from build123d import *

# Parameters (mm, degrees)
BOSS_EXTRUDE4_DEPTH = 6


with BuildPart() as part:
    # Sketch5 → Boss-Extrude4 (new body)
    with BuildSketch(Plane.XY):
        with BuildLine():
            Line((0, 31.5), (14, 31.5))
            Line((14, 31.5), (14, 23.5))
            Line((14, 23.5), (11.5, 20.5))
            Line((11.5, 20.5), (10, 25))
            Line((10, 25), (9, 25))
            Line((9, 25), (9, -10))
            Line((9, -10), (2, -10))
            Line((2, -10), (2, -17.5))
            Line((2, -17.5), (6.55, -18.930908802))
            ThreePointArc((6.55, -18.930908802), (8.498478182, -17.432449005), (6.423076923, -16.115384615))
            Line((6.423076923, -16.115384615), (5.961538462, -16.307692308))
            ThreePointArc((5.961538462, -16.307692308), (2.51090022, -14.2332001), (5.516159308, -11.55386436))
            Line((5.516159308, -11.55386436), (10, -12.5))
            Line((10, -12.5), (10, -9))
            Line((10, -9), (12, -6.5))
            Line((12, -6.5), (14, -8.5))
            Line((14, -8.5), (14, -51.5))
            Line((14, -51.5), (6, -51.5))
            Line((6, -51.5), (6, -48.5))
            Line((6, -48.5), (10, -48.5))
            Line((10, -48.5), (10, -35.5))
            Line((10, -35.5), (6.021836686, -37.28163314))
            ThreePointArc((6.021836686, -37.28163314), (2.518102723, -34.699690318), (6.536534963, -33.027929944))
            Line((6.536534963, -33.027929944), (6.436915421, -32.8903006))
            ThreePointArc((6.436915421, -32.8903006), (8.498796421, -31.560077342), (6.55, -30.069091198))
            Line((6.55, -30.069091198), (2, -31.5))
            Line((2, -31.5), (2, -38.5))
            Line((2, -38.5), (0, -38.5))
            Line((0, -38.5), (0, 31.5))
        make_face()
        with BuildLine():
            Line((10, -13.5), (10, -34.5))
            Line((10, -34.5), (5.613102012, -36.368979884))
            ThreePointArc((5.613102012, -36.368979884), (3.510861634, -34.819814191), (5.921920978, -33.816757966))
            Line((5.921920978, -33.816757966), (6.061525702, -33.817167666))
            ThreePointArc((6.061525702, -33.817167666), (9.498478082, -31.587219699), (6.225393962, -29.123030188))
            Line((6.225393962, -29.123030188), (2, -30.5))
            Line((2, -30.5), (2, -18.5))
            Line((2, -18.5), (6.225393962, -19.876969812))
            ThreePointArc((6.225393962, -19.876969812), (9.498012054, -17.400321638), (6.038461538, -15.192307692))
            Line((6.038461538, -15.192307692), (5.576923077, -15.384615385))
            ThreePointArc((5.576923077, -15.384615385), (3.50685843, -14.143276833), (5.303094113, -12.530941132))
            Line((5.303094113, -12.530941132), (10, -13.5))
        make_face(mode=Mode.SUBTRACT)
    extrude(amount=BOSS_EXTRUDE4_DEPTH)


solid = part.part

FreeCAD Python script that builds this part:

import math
import FreeCAD as App
import Part
import Sketcher

V = App.Vector
Q = App.Units.Quantity

doc = App.newDocument("Part")
body = doc.addObject("PartDesign::Body", "Body")

sketch1 = doc.addObject("Sketcher::SketchObject", "Sketch")
body.addObject(sketch1)
sketch1.AttachmentSupport = (doc.XY_Plane, [""])
sketch1.MapMode = "FlatFace"
sketch1.addGeometry([
    Part.LineSegment(V(14, 31.5, 0), V(0, 31.5, 0)),
    Part.LineSegment(V(0, 31.5, 0), V(0, -38.5, 0)),
    Part.LineSegment(V(0, -38.5, 0), V(2, -38.5, 0)),
    Part.LineSegment(V(2, -38.5, 0), V(2, -31.5, 0)),
    Part.LineSegment(V(2, -31.5, 0), V(6.55, -30.07, 0)),
    Part.ArcOfCircle(Part.Circle(V(7, -31.5, 0), V(0, 0, 1), 1.5), math.radians(-112), math.radians(107)),
    Part.LineSegment(V(6.44, -32.89, 0), V(6.54, -33.03, 0)),
    Part.ArcOfCircle(Part.Circle(V(5, -35, 0), V(0, 0, 1), 2.5), math.radians(52), math.radians(294)),
    Part.LineSegment(V(6.02, -37.28, 0), V(10, -35.5, 0)),
    Part.LineSegment(V(10, -35.5, 0), V(10, -48.5, 0)),
    Part.LineSegment(V(10, -48.5, 0), V(6, -48.5, 0)),
    Part.LineSegment(V(6, -48.5, 0), V(6, -51.5, 0)),
    Part.LineSegment(V(6, -51.5, 0), V(14, -51.5, 0)),
    Part.LineSegment(V(14, -51.5, 0), V(14, -8.5, 0)),
    Part.LineSegment(V(14, -8.5, 0), V(12, -6.5, 0)),
    Part.LineSegment(V(12, -6.5, 0), V(10, -9, 0)),
    Part.LineSegment(V(10, -9, 0), V(10, -12.5, 0)),
    Part.LineSegment(V(10, -12.5, 0), V(5.52, -11.55, 0)),
    Part.ArcOfCircle(Part.Circle(V(5, -14, 0), V(0, 0, 1), 2.5), math.radians(78), math.radians(293)),
    Part.LineSegment(V(5.96, -16.31, 0), V(6.42, -16.12, 0)),
    Part.ArcOfCircle(Part.Circle(V(7, -17.5, 0), V(0, 0, 1), 1.5), math.radians(-107), math.radians(113)),
    Part.LineSegment(V(6.55, -18.93, 0), V(2, -17.5, 0)),
    Part.LineSegment(V(2, -17.5, 0), V(2, -10, 0)),
    Part.LineSegment(V(2, -10, 0), V(9, -10, 0)),
    Part.LineSegment(V(9, -10, 0), V(9, 25, 0)),
    Part.LineSegment(V(9, 25, 0), V(10, 25, 0)),
    Part.LineSegment(V(10, 25, 0), V(11.5, 20.5, 0)),
    Part.LineSegment(V(11.5, 20.5, 0), V(14, 23.5, 0)),
    Part.LineSegment(V(14, 23.5, 0), V(14, 31.5, 0)),
    Part.LineSegment(V(10, -13.5, 0), V(10, -34.5, 0)),
    Part.LineSegment(V(10, -34.5, 0), V(5.61, -36.37, 0)),
    Part.ArcOfCircle(Part.Circle(V(5, -35, 0), V(0, 0, 1), 1.5), math.radians(52), math.radians(294)),
    Part.LineSegment(V(5.92, -33.82, 0), V(6.06, -33.82, 0)),
    Part.ArcOfCircle(Part.Circle(V(7, -31.5, 0), V(0, 0, 1), 2.5), math.radians(-112), math.radians(108)),
    Part.LineSegment(V(6.23, -29.12, 0), V(2, -30.5, 0)),
    Part.LineSegment(V(2, -30.5, 0), V(2, -18.5, 0)),
    Part.LineSegment(V(2, -18.5, 0), V(6.23, -19.88, 0)),
    Part.ArcOfCircle(Part.Circle(V(7, -17.5, 0), V(0, 0, 1), 2.5), math.radians(-108), math.radians(113)),
    Part.LineSegment(V(6.04, -15.19, 0), V(5.58, -15.38, 0)),
    Part.ArcOfCircle(Part.Circle(V(5, -14, 0), V(0, 0, 1), 1.5), math.radians(78), math.radians(293)),
    Part.LineSegment(V(5.3, -12.53, 0), V(10, -13.5, 0)),
], False)
sketch1.addConstraint([
    Sketcher.Constraint("Coincident", 0, 2, 1, 1),
    Sketcher.Constraint("Coincident", 1, 2, 2, 1),
    Sketcher.Constraint("Coincident", 2, 2, 3, 1),
    Sketcher.Constraint("Coincident", 3, 2, 4, 1),
    Sketcher.Constraint("Tangent", 4, 2, 5, 2),
    Sketcher.Constraint("Coincident", 5, 1, 6, 1),
    Sketcher.Constraint("Coincident", 6, 2, 7, 1),
    Sketcher.Constraint("Tangent", 7, 2, 8, 1),
    Sketcher.Constraint("Coincident", 8, 2, 9, 1),
    Sketcher.Constraint("Coincident", 9, 2, 10, 1),
    Sketcher.Constraint("Coincident", 10, 2, 11, 1),
    Sketcher.Constraint("Coincident", 11, 2, 12, 1),
    Sketcher.Constraint("Coincident", 12, 2, 13, 1),
    Sketcher.Constraint("Coincident", 13, 2, 14, 1),
    Sketcher.Constraint("Coincident", 14, 2, 15, 1),
    Sketcher.Constraint("Coincident", 15, 2, 16, 1),
    Sketcher.Constraint("Coincident", 16, 2, 17, 1),
    Sketcher.Constraint("Tangent", 17, 2, 18, 1),
    Sketcher.Constraint("Tangent", 18, 2, 19, 1),
    Sketcher.Constraint("Tangent", 19, 2, 20, 2),
    Sketcher.Constraint("Tangent", 20, 1, 21, 1),
    Sketcher.Constraint("Coincident", 21, 2, 22, 1),
    Sketcher.Constraint("Coincident", 22, 2, 23, 1),
    Sketcher.Constraint("Coincident", 23, 2, 24, 1),
    Sketcher.Constraint("Coincident", 24, 2, 25, 1),
    Sketcher.Constraint("Coincident", 25, 2, 26, 1),
    Sketcher.Constraint("Coincident", 26, 2, 27, 1),
    Sketcher.Constraint("Coincident", 27, 2, 28, 1),
    Sketcher.Constraint("Coincident", 28, 2, 0, 1),
    Sketcher.Constraint("Coincident", 29, 2, 30, 1),
    Sketcher.Constraint("Coincident", 30, 2, 31, 2),
    Sketcher.Constraint("Coincident", 31, 1, 32, 1),
    Sketcher.Constraint("Coincident", 32, 2, 33, 1),
    Sketcher.Constraint("Tangent", 33, 2, 34, 1),
    Sketcher.Constraint("Coincident", 34, 2, 35, 1),
    Sketcher.Constraint("Coincident", 35, 2, 36, 1),
    Sketcher.Constraint("Tangent", 36, 2, 37, 1),
    Sketcher.Constraint("Tangent", 37, 2, 38, 1),
    Sketcher.Constraint("Tangent", 38, 2, 39, 2),
    Sketcher.Constraint("Tangent", 39, 1, 40, 1),
    Sketcher.Constraint("Coincident", 40, 2, 29, 1),
    Sketcher.Constraint("Horizontal", 0),
    Sketcher.Constraint("Vertical", 1),
    Sketcher.Constraint("Horizontal", 2),
    Sketcher.Constraint("Vertical", 3),
    Sketcher.Constraint("Vertical", 9),
    Sketcher.Constraint("Horizontal", 10),
    Sketcher.Constraint("Vertical", 11),
    Sketcher.Constraint("Horizontal", 12),
    Sketcher.Constraint("Vertical", 13),
    Sketcher.Constraint("Vertical", 16),
    Sketcher.Constraint("Vertical", 22),
    Sketcher.Constraint("Horizontal", 23),
    Sketcher.Constraint("Vertical", 24),
    Sketcher.Constraint("Horizontal", 25),
    Sketcher.Constraint("Vertical", 28),
    Sketcher.Constraint("Vertical", 29),
    Sketcher.Constraint("Vertical", 35),
    Sketcher.Constraint("Coincident", 31, 3, 7, 3),
    Sketcher.Constraint("Coincident", 33, 3, 5, 3),
    Sketcher.Constraint("Coincident", 37, 3, 20, 3),
    Sketcher.Constraint("Coincident", 39, 3, 18, 3),
    Sketcher.Constraint("Equal", 7, 18),
    Sketcher.Constraint("Equal", 5, 20),
    Sketcher.Constraint("Equal", 20, 31),
    Sketcher.Constraint("Equal", 18, 33),
    Sketcher.Constraint("Equal", 33, 37),
    Sketcher.Constraint("Equal", 31, 39),
    Sketcher.Constraint("PointOnObject", 0, 2, -2),
    Sketcher.Constraint("Horizontal", 33, 3, 3, 2),
    Sketcher.Constraint("Horizontal", 37, 3, 21, 2),
    Sketcher.Constraint("Vertical", 7, 3, 18, 3),
    Sketcher.Constraint("Vertical", 5, 3, 20, 3),
    Sketcher.Constraint("Vertical", 9, 2, 15, 2),
    Sketcher.Constraint("Vertical", 4, 2, 20, 1),
    Sketcher.Constraint("Vertical", 16, 2, 25, 2),
    Sketcher.Constraint("Vertical", 13, 2, 27, 2),
    Sketcher.Constraint("Vertical", 25, 2, 29, 2),
    Sketcher.Constraint("Vertical", 22, 2, 34, 2),
    Sketcher.Constraint("Vertical", 33, 2, 36, 2),
    Sketcher.Constraint("Equal", 23, 3),
    Sketcher.Constraint("Equal", 12, 28),
    Sketcher.Constraint("Radius", 5, Q("1.5 mm")),
    Sketcher.Constraint("Radius", 7, Q("2.5 mm")),
    Sketcher.Constraint("DistanceX", 0, 2, 0, 1, Q("14 mm")),
    Sketcher.Constraint("DistanceX", 2, 1, 2, 2, Q("2 mm")),
    Sketcher.Constraint("DistanceX", 10, 2, 10, 1, Q("4 mm")),
    Sketcher.Constraint("DistanceX", 12, 1, 12, 2, Q("8 mm")),
    Sketcher.Constraint("DistanceX", 23, 1, 23, 2, Q("7 mm")),
    Sketcher.Constraint("DistanceY", 1, 2, 1, 1, Q("70 mm")),
    Sketcher.Constraint("DistanceY", 9, 2, 9, 1, Q("13 mm")),
    Sketcher.Constraint("DistanceY", 11, 2, 11, 1, Q("3 mm")),
    Sketcher.Constraint("DistanceY", 13, 1, 13, 2, Q("43 mm")),
    Sketcher.Constraint("DistanceY", 24, 1, 24, 2, Q("35 mm")),
    Sketcher.Constraint("DistanceY", 29, 2, 29, 1, Q("21 mm")),
    Sketcher.Constraint("DistanceY", 35, 1, 35, 2, Q("12 mm")),
    Sketcher.Constraint("Angle", 14, Q("135 deg")),
    Sketcher.Constraint("DistanceY", 16, 2, 16, 1, Q("3.5 mm")),
    Sketcher.Constraint("DistanceY", 22, 1, 22, 2, Q("7.5 mm")),
    Sketcher.Constraint("DistanceX", -1, 1, 5, 3, Q("7 mm")),
    Sketcher.Constraint("DistanceX", -1, 1, 7, 3, Q("5 mm")),
    Sketcher.Constraint("DistanceY", 7, 3, -1, 1, Q("35 mm")),
    Sketcher.Constraint("DistanceY", 18, 3, -1, 1, Q("14 mm")),
    Sketcher.Constraint("DistanceX", -1, 1, 14, 2, Q("12 mm")),
    Sketcher.Constraint("DistanceY", 15, 2, -1, 1, Q("9 mm")),
    Sketcher.Constraint("DistanceY", 22, 2, -1, 1, Q("10 mm")),
    Sketcher.Constraint("DistanceY", 5, 3, 20, 3, Q("14 mm")),
    Sketcher.Constraint("DistanceY", 8, 2, 5, 3, Q("4 mm")),
    Sketcher.Constraint("DistanceY", 26, 2, 0, 2, Q("11 mm")),
    Sketcher.Constraint("DistanceY", 8, 2, 29, 2, Q("1 mm")),
    Sketcher.Constraint("DistanceX", -1, 1, 26, 2, Q("11.5 mm")),
    Sketcher.Constraint("Distance", 6, Q("0.1699 mm")),
    Sketcher.Constraint("DistanceY", 5, 1, -1, 1, Q("32.890301 mm")),
    Sketcher.Constraint("DistanceY", 30, 2, -1, 1, Q("36.36898 mm")),
    Sketcher.Constraint("DistanceX", -1, 1, 31, 1, Q("5.921921 mm")),
    Sketcher.Constraint("DistanceY", 32, 2, 31, 1, Q("0.00041 mm")),
])
pad1 = doc.addObject("PartDesign::Pad", "Pad")
body.addObject(pad1)
pad1.Profile = sketch1
pad1.Length = 6

doc.recompute()
